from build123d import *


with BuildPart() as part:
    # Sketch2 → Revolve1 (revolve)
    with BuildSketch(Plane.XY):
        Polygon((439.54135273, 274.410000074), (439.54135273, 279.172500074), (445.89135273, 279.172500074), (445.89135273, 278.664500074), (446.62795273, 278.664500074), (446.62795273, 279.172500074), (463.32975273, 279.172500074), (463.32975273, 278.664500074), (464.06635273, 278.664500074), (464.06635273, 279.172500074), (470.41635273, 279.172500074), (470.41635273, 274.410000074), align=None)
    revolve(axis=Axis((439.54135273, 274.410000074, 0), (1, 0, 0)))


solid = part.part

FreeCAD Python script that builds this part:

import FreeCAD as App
import Part
import Sketcher
Q = App.Units.Quantity


def add_polygon(sketch, points):
    """Adds a closed chain of lines whose ends are joined by coincident constraints."""
    first, n = sketch.GeometryCount, len(points)
    for a, b in zip(points, points[1:] + points[:1]):
        sketch.addGeometry(Part.LineSegment(App.Vector(*a, 0), App.Vector(*b, 0)), False)
    for i in range(n):
        sketch.addConstraint(Sketcher.Constraint("Coincident", first + i, 2, first + (i + 1) % n, 1))

doc = App.newDocument("Part")
body = doc.addObject("PartDesign::Body", "Body")

# Sketch on XY plane
sketch1 = doc.addObject("Sketcher::SketchObject", "Sketch")
body.addObject(sketch1)
sketch1.AttachmentSupport = (doc.XY_Plane, [""])
sketch1.MapMode = "FlatFace"
add_polygon(sketch1, [(439.5, 279.2), (439.5, 274.4), (470.4, 274.4), (470.4, 279.2), (464.1, 279.2), (464.1, 278.7), (463.3, 278.7), (463.3, 279.2), (446.6, 279.2), (446.6, 278.7), (445.9, 278.7), (445.9, 279.2)])  # lines 0-11
sketch1.addGeometry(Part.LineSegment(App.Vector(439.5, 274.4, 0), App.Vector(470.4, 274.4, 0)), True)  # axis
sketch1.addConstraint(Sketcher.Constraint("Vertical", 0))
sketch1.addConstraint(Sketcher.Constraint("Horizontal", 1))
sketch1.addConstraint(Sketcher.Constraint("Vertical", 2))
sketch1.addConstraint(Sketcher.Constraint("Horizontal", 3))
sketch1.addConstraint(Sketcher.Constraint("Vertical", 4))
sketch1.addConstraint(Sketcher.Constraint("Horizontal", 5))
sketch1.addConstraint(Sketcher.Constraint("Vertical", 6))
sketch1.addConstraint(Sketcher.Constraint("Horizontal", 7))
sketch1.addConstraint(Sketcher.Constraint("Vertical", 8))
sketch1.addConstraint(Sketcher.Constraint("Horizontal", 9))
sketch1.addConstraint(Sketcher.Constraint("Vertical", 10))
sketch1.addConstraint(Sketcher.Constraint("Horizontal", 11))
sketch1.addConstraint(Sketcher.Constraint("Horizontal", 12))
sketch1.addConstraint(Sketcher.Constraint("Coincident", 12, 1, 0, 2))
sketch1.addConstraint(Sketcher.Constraint("Horizontal", 3, 2, 6, 2))
sketch1.addConstraint(Sketcher.Constraint("Horizontal", 5, 2, 8, 2))
sketch1.addConstraint(Sketcher.Constraint("Horizontal", 7, 2, 10, 2))
sketch1.addConstraint(Sketcher.Constraint("Vertical", 2, 2, 12, 2))
sketch1.addConstraint(Sketcher.Constraint("Equal", 5, 9))
sketch1.addConstraint(Sketcher.Constraint("Equal", 3, 11))
sketch1.addConstraint(Sketcher.Constraint("DistanceX", 3, 2, 3, 1, Q("0.25 in")))
sketch1.addConstraint(Sketcher.Constraint("DistanceY", 4, 2, 4, 1, Q("0.02 in")))
sketch1.addConstraint(Sketcher.Constraint("DistanceX", 5, 2, 5, 1, Q("0.029 in")))
sketch1.addConstraint(Sketcher.Constraint("DistanceY", 0, 2, 0, 1, Q("0.1875 in")))
sketch1.addConstraint(Sketcher.Constraint("DistanceX", 1, 1, 1, 2, 30.875))
sketch1.addConstraint(Sketcher.Constraint("DistanceY", -1, 1, 0, 2, 274.41))
sketch1.addConstraint(Sketcher.Constraint("DistanceX", -1, 1, 0, 2, 439.541353))
revolution = doc.addObject("PartDesign::Revolution", "Revolution")
body.addObject(revolution)
revolution.Profile = sketch1
revolution.ReferenceAxis = (sketch1, ["Axis0"])
revolution.Angle = 360

doc.recompute()
